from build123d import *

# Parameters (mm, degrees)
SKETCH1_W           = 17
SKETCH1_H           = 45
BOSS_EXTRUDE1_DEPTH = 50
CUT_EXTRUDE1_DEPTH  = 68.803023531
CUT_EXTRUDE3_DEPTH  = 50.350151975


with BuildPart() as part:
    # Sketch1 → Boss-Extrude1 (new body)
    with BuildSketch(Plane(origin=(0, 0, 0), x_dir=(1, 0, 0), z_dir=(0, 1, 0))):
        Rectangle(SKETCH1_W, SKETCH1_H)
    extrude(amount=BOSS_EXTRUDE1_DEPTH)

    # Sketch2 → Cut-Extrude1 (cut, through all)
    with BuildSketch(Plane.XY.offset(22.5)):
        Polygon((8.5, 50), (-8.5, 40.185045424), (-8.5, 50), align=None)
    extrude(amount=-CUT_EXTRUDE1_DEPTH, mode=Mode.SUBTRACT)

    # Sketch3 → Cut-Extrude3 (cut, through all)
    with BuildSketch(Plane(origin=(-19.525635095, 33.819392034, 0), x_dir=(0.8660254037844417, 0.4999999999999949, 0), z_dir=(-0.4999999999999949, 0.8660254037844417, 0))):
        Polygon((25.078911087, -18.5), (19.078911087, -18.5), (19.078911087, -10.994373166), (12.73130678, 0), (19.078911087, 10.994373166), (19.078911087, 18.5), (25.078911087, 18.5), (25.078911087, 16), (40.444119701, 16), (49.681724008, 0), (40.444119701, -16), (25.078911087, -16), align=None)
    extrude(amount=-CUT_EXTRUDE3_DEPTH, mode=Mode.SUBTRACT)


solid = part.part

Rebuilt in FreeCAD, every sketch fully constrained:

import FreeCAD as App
import Part
import Sketcher

V = App.Vector
Q = App.Units.Quantity

doc = App.newDocument("Part")
params = doc.addObject("Spreadsheet::Sheet", "Params")
for row, (alias, value) in enumerate([
    ("sketch1_width", "17 mm"),
    ("sketch1_height", "45 mm"),
    ("pad1_length", "50 mm"),
    ("sketch2_width", "17 mm"),
    ("sketch3_width", "6 mm"),
    ("sketch3_height", "2.5 mm"),
], start=1):
    params.set(f"A{row}", alias)
    params.set(f"B{row}", "=" + value)
    params.setAlias(f"B{row}", alias)

body = doc.addObject("PartDesign::Body", "Body")

# Sketch on XZ plane
sketch1 = body.newObject("Sketcher::SketchObject", "Sketch")
sketch1.AttachmentSupport = (doc.getObject("XZ_Plane"), [""])
sketch1.MapMode = "FlatFace"
sketch1.addGeometry([
    Part.LineSegment(V(-8.5, -22.5, 0), V(-8.5, 22.5, 0)),
    Part.LineSegment(V(-8.5, 22.5, 0), V(8.5, 22.5, 0)),
    Part.LineSegment(V(8.5, 22.5, 0), V(8.5, -22.5, 0)),
    Part.LineSegment(V(8.5, -22.5, 0), V(-8.5, -22.5, 0)),
], False)
sketch1.addConstraint([
    Sketcher.Constraint("Coincident", 0, 2, 1, 1),
    Sketcher.Constraint("Coincident", 1, 2, 2, 1),
    Sketcher.Constraint("Coincident", 2, 2, 3, 1),
    Sketcher.Constraint("Coincident", 3, 2, 0, 1),
    Sketcher.Constraint("Vertical", 0),
    Sketcher.Constraint("Horizontal", 1),
    Sketcher.Constraint("Vertical", 2),
    Sketcher.Constraint("Horizontal", 3),
    Sketcher.Constraint("Symmetric", 0, 2, 2, 2, -1, 1),
    Sketcher.Constraint("DistanceX", 1, 1, 1, 2, Q("17 mm")),
    Sketcher.Constraint("DistanceY", 0, 1, 0, 2, Q("45 mm")),
])
sketch1.setExpression("Constraints[9]", "Params.sketch1_width")
sketch1.setExpression("Constraints[10]", "Params.sketch1_height")
pad1 = body.newObject("PartDesign::Pad", "Pad")
pad1.Profile = sketch1
pad1.setExpression("Length", "Params.pad1_length")
pad1.Reversed = True

# Sketch on XY plane
sketch2 = body.newObject("Sketcher::SketchObject", "Sketch001")
sketch2.AttachmentSupport = (doc.getObject("XY_Plane"), [""])
sketch2.MapMode = "FlatFace"
sketch2.AttachmentOffset = App.Placement(V(0, 0, 22.5), App.Rotation())
sketch2.addGeometry([
    Part.LineSegment(V(-8.5, 40.185045, 0), V(8.5, 50, 0)),
    Part.LineSegment(V(8.5, 50, 0), V(-8.5, 50, 0)),
    Part.LineSegment(V(-8.5, 50, 0), V(-8.5, 40.185045, 0)),
], False)
sketch2.addConstraint([
    Sketcher.Constraint("Coincident", 0, 2, 1, 1),
    Sketcher.Constraint("Coincident", 1, 2, 2, 1),
    Sketcher.Constraint("Coincident", 2, 2, 0, 1),
    Sketcher.Constraint("Horizontal", 1),
    Sketcher.Constraint("Vertical", 2),
    Sketcher.Constraint("DistanceX", 1, 2, 1, 1, Q("17 mm")),
    Sketcher.Constraint("Angle", 0, Q("30 deg")),
    Sketcher.Constraint("DistanceY", -1, 1, 0, 2, Q("50 mm")),
    Sketcher.Constraint("DistanceX", -1, 1, 0, 2, Q("8.5 mm")),
])
sketch2.setExpression("Constraints[5]", "Params.sketch2_width")
pocket1 = body.newObject("PartDesign::Pocket", "Pocket")
pocket1.Profile = sketch2
pocket1.Type = "ThroughAll"

# Sketch on an angled plane
sketch3 = body.newObject("Sketcher::SketchObject", "Sketch002")
sketch3.Placement = App.Placement(V(-19.525635, 33.819392, 0), App.Rotation(V(0.866025404, 0.5, 0), V(0, 0, -1), V(-0.5, 0.866025404, 0), "ZXY"))
sketch3.addGeometry([
    Part.LineSegment(V(19.078911, -18.5, 0), V(25.078911, -18.5, 0)),  # 0
    Part.LineSegment(V(25.078911, -18.5, 0), V(25.078911, -16, 0)),  # 1
    Part.LineSegment(V(25.078911, -16, 0), V(40.44412, -16, 0)),  # 2
    Part.LineSegment(V(40.44412, -16, 0), V(49.681724, 0, 0)),  # 3
    Part.LineSegment(V(49.681724, 0, 0), V(40.44412, 16, 0)),  # 4
    Part.LineSegment(V(40.44412, 16, 0), V(25.078911, 16, 0)),  # 5
    Part.LineSegment(V(25.078911, 16, 0), V(25.078911, 18.5, 0)),  # 6
    Part.LineSegment(V(25.078911, 18.5, 0), V(19.078911, 18.5, 0)),  # 7
    Part.LineSegment(V(19.078911, 18.5, 0), V(19.078911, 10.994373, 0)),  # 8
    Part.LineSegment(V(19.078911, 10.994373, 0), V(12.731307, 0, 0)),  # 9
    Part.LineSegment(V(12.731307, 0, 0), V(19.078911, -10.994373, 0)),  # 10
    Part.LineSegment(V(19.078911, -10.994373, 0), V(19.078911, -18.5, 0)),  # 11
], False)
sketch3.addConstraint([
    Sketcher.Constraint("Coincident", 0, 2, 1, 1),
    Sketcher.Constraint("Coincident", 1, 2, 2, 1),
    Sketcher.Constraint("Coincident", 2, 2, 3, 1),
    Sketcher.Constraint("Coincident", 3, 2, 4, 1),
    Sketcher.Constraint("Coincident", 4, 2, 5, 1),
    Sketcher.Constraint("Coincident", 5, 2, 6, 1),
    Sketcher.Constraint("Coincident", 6, 2, 7, 1),
    Sketcher.Constraint("Coincident", 7, 2, 8, 1),
    Sketcher.Constraint("Coincident", 8, 2, 9, 1),
    Sketcher.Constraint("Coincident", 9, 2, 10, 1),
    Sketcher.Constraint("Coincident", 10, 2, 11, 1),
    Sketcher.Constraint("Coincident", 11, 2, 0, 1),
    Sketcher.Constraint("Horizontal", 0),
    Sketcher.Constraint("Vertical", 1),
    Sketcher.Constraint("Horizontal", 2),
    Sketcher.Constraint("Horizontal", 5),
    Sketcher.Constraint("Vertical", 6),
    Sketcher.Constraint("Horizontal", 7),
    Sketcher.Constraint("Vertical", 8),
    Sketcher.Constraint("Vertical", 11),
    Sketcher.Constraint("Symmetric", 2, 2, 4, 2, -1),
    Sketcher.Constraint("Symmetric", 0, 2, 6, 2, -1),
    Sketcher.Constraint("Symmetric", 8, 2, 10, 2, -1),
    Sketcher.Constraint("PointOnObject", 3, 2, -1),
    Sketcher.Constraint("PointOnObject", 9, 2, -1),
    Sketcher.Constraint("Parallel", 3, 9),
    Sketcher.Constraint("DistanceX", 0, 1, 0, 2, Q("6 mm")),
    Sketcher.Constraint("Angle", 3, Q("60 deg")),
    Sketcher.Constraint("DistanceY", 1, 1, 1, 2, Q("2.5 mm")),
    Sketcher.Constraint("DistanceY", 1, 2, -1, 1, Q("16 mm")),
    Sketcher.Constraint("DistanceX", 2, 1, 2, 2, Q("15.365209 mm")),
    Sketcher.Constraint("Distance", 9, Q("12.695209 mm")),
    Sketcher.Constraint("DistanceX", -1, 1, 0, 2, Q("25.078911 mm")),
])
sketch3.setExpression("Constraints[26]", "Params.sketch3_width")
sketch3.setExpression("Constraints[28]", "Params.sketch3_height")
pocket2 = body.newObject("PartDesign::Pocket", "Pocket001")
pocket2.Profile = sketch3
pocket2.Type = "ThroughAll"

doc.recompute()
